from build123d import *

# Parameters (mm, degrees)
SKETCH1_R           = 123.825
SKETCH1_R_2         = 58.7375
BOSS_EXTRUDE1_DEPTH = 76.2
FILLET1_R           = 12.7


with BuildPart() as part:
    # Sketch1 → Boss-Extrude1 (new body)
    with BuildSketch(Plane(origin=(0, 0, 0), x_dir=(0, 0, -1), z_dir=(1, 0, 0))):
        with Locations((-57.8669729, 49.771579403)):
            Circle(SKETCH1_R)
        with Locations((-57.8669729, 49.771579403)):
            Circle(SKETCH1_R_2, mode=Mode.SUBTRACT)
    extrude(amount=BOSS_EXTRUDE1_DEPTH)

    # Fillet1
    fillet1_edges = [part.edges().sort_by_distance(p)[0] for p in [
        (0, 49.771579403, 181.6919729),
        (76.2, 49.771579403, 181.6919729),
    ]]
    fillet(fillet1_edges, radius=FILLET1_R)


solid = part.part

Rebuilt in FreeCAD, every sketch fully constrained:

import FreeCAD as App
import Part
import Sketcher
Q = App.Units.Quantity


def edges_at(feature, points):
    """Names of the edges that pass closest to the given points."""
    edges = feature.Shape.Edges
    near = lambda p: min(range(len(edges)), key=lambda i: edges[i].distToShape(Part.Vertex(*p))[0])
    return sorted({f"Edge{near(p) + 1}" for p in points})

doc = App.newDocument("Part")
body = doc.addObject("PartDesign::Body", "Body")

# Sketch on YZ plane
sketch1 = doc.addObject("Sketcher::SketchObject", "Sketch")
body.addObject(sketch1)
sketch1.AttachmentSupport = (doc.YZ_Plane, [""])
sketch1.MapMode = "FlatFace"
sketch1.addGeometry([
    Part.Circle(App.Vector(49.771579, 57.866973, 0), App.Vector(0, 0, 1), 123.825),
    Part.Circle(App.Vector(49.771579, 57.866973, 0), App.Vector(0, 0, 1), 58.7375),
], False)
sketch1.addConstraint([
    Sketcher.Constraint("Coincident", 1, 3, 0, 3),
    Sketcher.Constraint("Diameter", 0, Q("9.75 in")),
    Sketcher.Constraint("Diameter", 1, Q("4.625 in")),
    Sketcher.Constraint("DistanceX", -1, 1, 0, 3, Q("49.771579 mm")),
    Sketcher.Constraint("DistanceY", -1, 1, 0, 3, Q("57.866973 mm")),
])
pad1 = doc.addObject("PartDesign::Pad", "Pad")
body.addObject(pad1)
pad1.Profile = sketch1
pad1.Length = Q("3 in")
doc.recompute()

fillet = doc.addObject("PartDesign::Fillet", "Fillet")
body.addObject(fillet)
fillet.Base = (pad1, edges_at(pad1, [(0, 49.772, 181.692), (76.2, 49.772, 181.692)]))
fillet.Radius = Q("0.5 in")

doc.recompute()
